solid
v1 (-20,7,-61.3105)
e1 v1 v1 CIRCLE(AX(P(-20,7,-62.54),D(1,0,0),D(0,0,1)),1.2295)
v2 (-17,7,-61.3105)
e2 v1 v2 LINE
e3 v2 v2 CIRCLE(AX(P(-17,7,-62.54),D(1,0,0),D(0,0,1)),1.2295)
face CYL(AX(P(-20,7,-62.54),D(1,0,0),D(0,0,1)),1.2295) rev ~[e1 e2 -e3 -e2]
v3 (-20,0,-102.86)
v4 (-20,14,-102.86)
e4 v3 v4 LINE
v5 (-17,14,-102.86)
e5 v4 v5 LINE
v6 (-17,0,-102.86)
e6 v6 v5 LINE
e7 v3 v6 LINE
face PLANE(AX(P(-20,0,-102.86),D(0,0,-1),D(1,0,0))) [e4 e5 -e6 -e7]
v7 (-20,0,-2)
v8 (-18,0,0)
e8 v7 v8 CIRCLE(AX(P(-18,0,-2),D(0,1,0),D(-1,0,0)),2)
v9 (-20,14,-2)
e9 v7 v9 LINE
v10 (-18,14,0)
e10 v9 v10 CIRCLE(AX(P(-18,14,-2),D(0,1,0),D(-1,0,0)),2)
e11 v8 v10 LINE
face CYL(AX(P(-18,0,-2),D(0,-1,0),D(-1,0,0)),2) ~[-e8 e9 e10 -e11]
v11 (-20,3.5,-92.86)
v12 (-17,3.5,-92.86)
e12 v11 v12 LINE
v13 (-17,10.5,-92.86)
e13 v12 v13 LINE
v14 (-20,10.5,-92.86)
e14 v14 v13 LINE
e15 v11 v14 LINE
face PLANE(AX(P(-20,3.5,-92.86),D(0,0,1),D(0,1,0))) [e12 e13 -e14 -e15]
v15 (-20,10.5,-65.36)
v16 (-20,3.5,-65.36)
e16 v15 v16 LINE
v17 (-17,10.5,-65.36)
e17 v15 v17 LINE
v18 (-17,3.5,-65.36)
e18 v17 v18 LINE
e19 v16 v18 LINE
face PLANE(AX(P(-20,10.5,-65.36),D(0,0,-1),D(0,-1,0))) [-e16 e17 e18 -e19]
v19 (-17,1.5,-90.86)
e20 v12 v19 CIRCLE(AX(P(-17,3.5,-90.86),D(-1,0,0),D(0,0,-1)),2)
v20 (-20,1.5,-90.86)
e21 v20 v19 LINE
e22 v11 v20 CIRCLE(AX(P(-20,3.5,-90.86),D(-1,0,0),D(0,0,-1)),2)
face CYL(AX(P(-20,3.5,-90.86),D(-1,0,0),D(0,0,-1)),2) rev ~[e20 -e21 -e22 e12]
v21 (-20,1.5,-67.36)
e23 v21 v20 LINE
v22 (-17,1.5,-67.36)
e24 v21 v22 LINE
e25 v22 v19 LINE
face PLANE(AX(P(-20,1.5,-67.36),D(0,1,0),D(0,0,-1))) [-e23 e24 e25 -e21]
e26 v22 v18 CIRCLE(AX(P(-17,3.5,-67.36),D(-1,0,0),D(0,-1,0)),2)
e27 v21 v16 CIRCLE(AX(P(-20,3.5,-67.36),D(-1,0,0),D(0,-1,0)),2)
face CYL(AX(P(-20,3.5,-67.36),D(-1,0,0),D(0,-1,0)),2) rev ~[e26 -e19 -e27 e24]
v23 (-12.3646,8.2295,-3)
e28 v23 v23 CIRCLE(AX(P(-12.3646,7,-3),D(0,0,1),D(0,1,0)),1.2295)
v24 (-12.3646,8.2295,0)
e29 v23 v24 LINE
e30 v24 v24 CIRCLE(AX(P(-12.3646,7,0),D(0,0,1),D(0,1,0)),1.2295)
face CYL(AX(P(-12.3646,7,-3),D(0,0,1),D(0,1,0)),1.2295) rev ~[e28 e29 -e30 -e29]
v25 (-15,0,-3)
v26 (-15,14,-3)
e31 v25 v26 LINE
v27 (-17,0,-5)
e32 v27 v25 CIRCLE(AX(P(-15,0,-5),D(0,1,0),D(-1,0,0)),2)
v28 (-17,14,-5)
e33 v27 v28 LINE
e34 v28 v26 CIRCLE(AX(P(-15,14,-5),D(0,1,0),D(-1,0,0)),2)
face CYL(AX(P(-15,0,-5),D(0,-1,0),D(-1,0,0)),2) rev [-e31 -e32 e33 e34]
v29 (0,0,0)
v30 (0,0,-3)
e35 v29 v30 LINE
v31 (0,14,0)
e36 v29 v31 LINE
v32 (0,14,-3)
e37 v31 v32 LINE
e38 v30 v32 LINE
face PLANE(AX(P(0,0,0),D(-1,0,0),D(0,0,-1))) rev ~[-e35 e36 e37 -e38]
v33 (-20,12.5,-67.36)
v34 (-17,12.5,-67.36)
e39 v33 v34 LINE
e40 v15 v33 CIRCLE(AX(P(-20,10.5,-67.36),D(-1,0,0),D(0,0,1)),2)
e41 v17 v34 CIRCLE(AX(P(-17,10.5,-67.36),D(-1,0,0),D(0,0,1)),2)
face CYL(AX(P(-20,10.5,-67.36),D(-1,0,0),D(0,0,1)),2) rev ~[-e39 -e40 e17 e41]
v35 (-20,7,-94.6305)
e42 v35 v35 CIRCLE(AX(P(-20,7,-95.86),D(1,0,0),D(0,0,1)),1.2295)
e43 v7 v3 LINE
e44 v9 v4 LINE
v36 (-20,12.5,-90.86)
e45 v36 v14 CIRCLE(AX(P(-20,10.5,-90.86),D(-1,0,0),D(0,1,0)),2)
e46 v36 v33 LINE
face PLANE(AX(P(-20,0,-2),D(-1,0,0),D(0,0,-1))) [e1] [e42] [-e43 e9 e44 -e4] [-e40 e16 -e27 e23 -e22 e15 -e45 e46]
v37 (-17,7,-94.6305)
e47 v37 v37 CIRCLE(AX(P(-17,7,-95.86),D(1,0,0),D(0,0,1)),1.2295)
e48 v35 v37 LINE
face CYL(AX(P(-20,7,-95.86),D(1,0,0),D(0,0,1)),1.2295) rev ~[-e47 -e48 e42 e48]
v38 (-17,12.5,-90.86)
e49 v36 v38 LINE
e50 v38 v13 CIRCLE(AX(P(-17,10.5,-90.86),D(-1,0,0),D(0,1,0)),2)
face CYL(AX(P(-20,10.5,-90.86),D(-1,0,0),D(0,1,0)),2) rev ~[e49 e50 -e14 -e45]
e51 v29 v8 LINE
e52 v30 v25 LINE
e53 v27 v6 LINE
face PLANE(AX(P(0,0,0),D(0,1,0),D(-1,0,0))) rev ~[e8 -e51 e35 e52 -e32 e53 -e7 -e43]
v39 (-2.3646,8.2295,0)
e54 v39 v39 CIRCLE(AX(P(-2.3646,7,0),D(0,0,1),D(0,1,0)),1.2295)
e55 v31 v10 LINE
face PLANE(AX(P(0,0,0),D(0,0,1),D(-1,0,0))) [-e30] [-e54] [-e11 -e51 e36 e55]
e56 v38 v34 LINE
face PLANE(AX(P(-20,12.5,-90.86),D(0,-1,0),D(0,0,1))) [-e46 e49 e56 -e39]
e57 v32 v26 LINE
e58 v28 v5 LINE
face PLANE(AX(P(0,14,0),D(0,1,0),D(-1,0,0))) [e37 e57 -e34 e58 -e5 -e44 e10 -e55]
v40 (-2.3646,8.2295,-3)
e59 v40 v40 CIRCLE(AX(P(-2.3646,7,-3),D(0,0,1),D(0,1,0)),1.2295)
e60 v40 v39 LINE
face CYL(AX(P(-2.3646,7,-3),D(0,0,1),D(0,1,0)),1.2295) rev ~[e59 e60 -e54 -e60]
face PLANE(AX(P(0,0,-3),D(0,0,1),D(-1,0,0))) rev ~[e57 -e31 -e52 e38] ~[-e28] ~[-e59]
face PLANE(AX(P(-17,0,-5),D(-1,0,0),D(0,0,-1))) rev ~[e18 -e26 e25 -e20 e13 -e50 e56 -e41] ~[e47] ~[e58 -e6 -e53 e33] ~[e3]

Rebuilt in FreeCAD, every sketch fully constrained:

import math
import FreeCAD as App
import Part
import Sketcher

V = App.Vector

doc = App.newDocument("Part")
body = doc.addObject("PartDesign::Body", "Body")

sketch1 = body.newObject("Sketcher::SketchObject", "Sketch")
sketch1.AttachmentSupport = (doc.getObject("XZ_Plane"), [""])
sketch1.MapMode = "FlatFace"
sketch1.addGeometry([
    Part.LineSegment(V(-18, 0, 0), V(0, 0, 0)),
    Part.LineSegment(V(0, 0, 0), V(0, -3, 0)),
    Part.LineSegment(V(0, -3, 0), V(-15, -3, 0)),
    Part.ArcOfCircle(Part.Circle(V(-15, -5, 0), V(0, 0, 1), 2), math.radians(90), math.radians(180)),
    Part.LineSegment(V(-17, -5, 0), V(-17, -102.9, 0)),
    Part.LineSegment(V(-17, -102.9, 0), V(-20, -102.9, 0)),
    Part.LineSegment(V(-20, -102.9, 0), V(-20, -2, 0)),
    Part.ArcOfCircle(Part.Circle(V(-18, -2, 0), V(0, 0, 1), 2), math.radians(90), math.radians(180)),
], False)
sketch1.addConstraint([
    Sketcher.Constraint("Coincident", 0, 2, 1, 1),
    Sketcher.Constraint("Coincident", 1, 2, 2, 1),
    Sketcher.Constraint("Tangent", 2, 2, 3, 1),
    Sketcher.Constraint("Tangent", 3, 2, 4, 1),
    Sketcher.Constraint("Coincident", 4, 2, 5, 1),
    Sketcher.Constraint("Coincident", 5, 2, 6, 1),
    Sketcher.Constraint("Tangent", 6, 2, 7, 2),
    Sketcher.Constraint("Tangent", 7, 1, 0, 1),
    Sketcher.Constraint("Horizontal", 0),
    Sketcher.Constraint("Vertical", 1),
    Sketcher.Constraint("Horizontal", 2),
    Sketcher.Constraint("Vertical", 4),
    Sketcher.Constraint("Horizontal", 5),
    Sketcher.Constraint("Vertical", 6),
    Sketcher.Constraint("Coincident", 0, 2, -1, 1),
    Sketcher.Constraint("Equal", 3, 7),
    Sketcher.Constraint("Equal", 5, 1),
    Sketcher.Constraint("Radius", 3, 2.0),
    Sketcher.Constraint("DistanceX", 5, 2, 5, 1, 3.0),
    Sketcher.Constraint("DistanceX", 3, 2, -1, 1, 17.0),
    Sketcher.Constraint("DistanceY", 4, 2, 2, 2, 99.86),
])
pad1 = body.newObject("PartDesign::Pad", "Pad")
pad1.Profile = sketch1
pad1.Length = 14
pad1.Reversed = True

sketch2 = body.newObject("Sketcher::SketchObject", "Sketch001")
sketch2.AttachmentSupport = (doc.getObject("XY_Plane"), [""])
sketch2.MapMode = "FlatFace"
sketch2.AttachmentOffset = App.Placement(V(0, 0, -3), App.Rotation())
sketch2.addGeometry([
    Part.Circle(V(-2.4, 7, 0), V(0, 0, 1), 1.2),
    Part.Circle(V(-12.4, 7, 0), V(0, 0, 1), 1.2),
], False)
sketch2.addConstraint([
    Sketcher.Constraint("Equal", 0, 1),
    Sketcher.Constraint("Horizontal", 0, 3, 1, 3),
    Sketcher.Constraint("Diameter", 0, 2.459),
    Sketcher.Constraint("DistanceY", -1, 1, 0, 3, 7.0),
    Sketcher.Constraint("DistanceX", 1, 3, 0, 3, 10.0),
    Sketcher.Constraint("DistanceX", 0, 3, -1, 1, 2.3646),
])
doc.recompute()
hole = body.newObject("PartDesign::Hole", "Hole")
hole.Profile = sketch2
hole.ThreadType = "None"
hole.Diameter = 2.459
hole.DepthType = "Dimension"
hole.Depth = 8.8
hole.DrillPoint = "Angled"
hole.DrillPointAngle = 118
hole.Reversed = True

sketch3 = body.newObject("Sketcher::SketchObject", "Sketch002")
sketch3.AttachmentSupport = (doc.getObject("YZ_Plane"), [""])
sketch3.MapMode = "FlatFace"
sketch3.AttachmentOffset = App.Placement(V(0, 0, -20), App.Rotation())
sketch3.addGeometry([
    Part.Circle(V(7, -62.5, 0), V(0, 0, 1), 1.2),
    Part.Circle(V(7, -95.9, 0), V(0, 0, 1), 1.2),
], False)
sketch3.addConstraint([
    Sketcher.Constraint("Equal", 0, 1),
    Sketcher.Constraint("Vertical", 0, 3, 1, 3),
    Sketcher.Constraint("Diameter", 0, 2.459),
    Sketcher.Constraint("DistanceX", -1, 1, 0, 3, 7.0),
    Sketcher.Constraint("DistanceY", 0, 3, -1, 1, 62.54),
    Sketcher.Constraint("DistanceY", 1, 3, -1, 1, 95.86),
])
doc.recompute()
hole2 = body.newObject("PartDesign::Hole", "Hole001")
hole2.Profile = sketch3
hole2.ThreadType = "None"
hole2.Diameter = 2.459
hole2.DepthType = "Dimension"
hole2.Depth = 8.8
hole2.DrillPoint = "Angled"
hole2.DrillPointAngle = 118
hole2.Reversed = True

sketch4 = body.newObject("Sketcher::SketchObject", "Sketch003")
sketch4.AttachmentSupport = (doc.getObject("YZ_Plane"), [""])
sketch4.MapMode = "FlatFace"
sketch4.AttachmentOffset = App.Placement(V(0, 0, -20), App.Rotation())
sketch4.addGeometry([
    Part.LineSegment(V(12.5, -67.4, 0), V(12.5, -90.9, 0)),
    Part.ArcOfCircle(Part.Circle(V(10.5, -90.9, 0), V(0, 0, 1), 2), math.radians(-90), math.radians(0)),
    Part.LineSegment(V(10.5, -92.9, 0), V(3.5, -92.9, 0)),
    Part.ArcOfCircle(Part.Circle(V(3.5, -90.9, 0), V(0, 0, 1), 2), math.radians(180), math.radians(270)),
    Part.LineSegment(V(1.5, -90.9, 0), V(1.5, -67.4, 0)),
    Part.ArcOfCircle(Part.Circle(V(3.5, -67.4, 0), V(0, 0, 1), 2), math.radians(90), math.radians(180)),
    Part.LineSegment(V(3.5, -65.4, 0), V(10.5, -65.4, 0)),
    Part.ArcOfCircle(Part.Circle(V(10.5, -67.4, 0), V(0, 0, 1), 2), math.radians(0), math.radians(90)),
], False)
sketch4.addConstraint([
    Sketcher.Constraint("Tangent", 0, 2, 1, 2),
    Sketcher.Constraint("Tangent", 1, 1, 2, 1),
    Sketcher.Constraint("Tangent", 2, 2, 3, 2),
    Sketcher.Constraint("Tangent", 3, 1, 4, 1),
    Sketcher.Constraint("Tangent", 4, 2, 5, 2),
    Sketcher.Constraint("Tangent", 5, 1, 6, 1),
    Sketcher.Constraint("Tangent", 6, 2, 7, 2),
    Sketcher.Constraint("Tangent", 7, 1, 0, 1),
    Sketcher.Constraint("Vertical", 0),
    Sketcher.Constraint("Horizontal", 2),
    Sketcher.Constraint("Vertical", 4),
    Sketcher.Constraint("Horizontal", 6),
    Sketcher.Constraint("Equal", 1, 3),
    Sketcher.Constraint("Equal", 3, 5),
    Sketcher.Constraint("Equal", 5, 7),
    Sketcher.Constraint("Radius", 1, 2.0),
    Sketcher.Constraint("DistanceX", 2, 2, 2, 1, 7.0),
    Sketcher.Constraint("DistanceX", -1, 1, 3, 1, 1.5),
    Sketcher.Constraint("DistanceY", 0, 2, 0, 1, 23.5),
    Sketcher.Constraint("DistanceY", 1, 3, -1, 1, 90.86),
])
pocket1 = body.newObject("PartDesign::Pocket", "Pocket")
pocket1.Profile = sketch4
pocket1.Length = 14
pocket1.Reversed = True

doc.recompute()
